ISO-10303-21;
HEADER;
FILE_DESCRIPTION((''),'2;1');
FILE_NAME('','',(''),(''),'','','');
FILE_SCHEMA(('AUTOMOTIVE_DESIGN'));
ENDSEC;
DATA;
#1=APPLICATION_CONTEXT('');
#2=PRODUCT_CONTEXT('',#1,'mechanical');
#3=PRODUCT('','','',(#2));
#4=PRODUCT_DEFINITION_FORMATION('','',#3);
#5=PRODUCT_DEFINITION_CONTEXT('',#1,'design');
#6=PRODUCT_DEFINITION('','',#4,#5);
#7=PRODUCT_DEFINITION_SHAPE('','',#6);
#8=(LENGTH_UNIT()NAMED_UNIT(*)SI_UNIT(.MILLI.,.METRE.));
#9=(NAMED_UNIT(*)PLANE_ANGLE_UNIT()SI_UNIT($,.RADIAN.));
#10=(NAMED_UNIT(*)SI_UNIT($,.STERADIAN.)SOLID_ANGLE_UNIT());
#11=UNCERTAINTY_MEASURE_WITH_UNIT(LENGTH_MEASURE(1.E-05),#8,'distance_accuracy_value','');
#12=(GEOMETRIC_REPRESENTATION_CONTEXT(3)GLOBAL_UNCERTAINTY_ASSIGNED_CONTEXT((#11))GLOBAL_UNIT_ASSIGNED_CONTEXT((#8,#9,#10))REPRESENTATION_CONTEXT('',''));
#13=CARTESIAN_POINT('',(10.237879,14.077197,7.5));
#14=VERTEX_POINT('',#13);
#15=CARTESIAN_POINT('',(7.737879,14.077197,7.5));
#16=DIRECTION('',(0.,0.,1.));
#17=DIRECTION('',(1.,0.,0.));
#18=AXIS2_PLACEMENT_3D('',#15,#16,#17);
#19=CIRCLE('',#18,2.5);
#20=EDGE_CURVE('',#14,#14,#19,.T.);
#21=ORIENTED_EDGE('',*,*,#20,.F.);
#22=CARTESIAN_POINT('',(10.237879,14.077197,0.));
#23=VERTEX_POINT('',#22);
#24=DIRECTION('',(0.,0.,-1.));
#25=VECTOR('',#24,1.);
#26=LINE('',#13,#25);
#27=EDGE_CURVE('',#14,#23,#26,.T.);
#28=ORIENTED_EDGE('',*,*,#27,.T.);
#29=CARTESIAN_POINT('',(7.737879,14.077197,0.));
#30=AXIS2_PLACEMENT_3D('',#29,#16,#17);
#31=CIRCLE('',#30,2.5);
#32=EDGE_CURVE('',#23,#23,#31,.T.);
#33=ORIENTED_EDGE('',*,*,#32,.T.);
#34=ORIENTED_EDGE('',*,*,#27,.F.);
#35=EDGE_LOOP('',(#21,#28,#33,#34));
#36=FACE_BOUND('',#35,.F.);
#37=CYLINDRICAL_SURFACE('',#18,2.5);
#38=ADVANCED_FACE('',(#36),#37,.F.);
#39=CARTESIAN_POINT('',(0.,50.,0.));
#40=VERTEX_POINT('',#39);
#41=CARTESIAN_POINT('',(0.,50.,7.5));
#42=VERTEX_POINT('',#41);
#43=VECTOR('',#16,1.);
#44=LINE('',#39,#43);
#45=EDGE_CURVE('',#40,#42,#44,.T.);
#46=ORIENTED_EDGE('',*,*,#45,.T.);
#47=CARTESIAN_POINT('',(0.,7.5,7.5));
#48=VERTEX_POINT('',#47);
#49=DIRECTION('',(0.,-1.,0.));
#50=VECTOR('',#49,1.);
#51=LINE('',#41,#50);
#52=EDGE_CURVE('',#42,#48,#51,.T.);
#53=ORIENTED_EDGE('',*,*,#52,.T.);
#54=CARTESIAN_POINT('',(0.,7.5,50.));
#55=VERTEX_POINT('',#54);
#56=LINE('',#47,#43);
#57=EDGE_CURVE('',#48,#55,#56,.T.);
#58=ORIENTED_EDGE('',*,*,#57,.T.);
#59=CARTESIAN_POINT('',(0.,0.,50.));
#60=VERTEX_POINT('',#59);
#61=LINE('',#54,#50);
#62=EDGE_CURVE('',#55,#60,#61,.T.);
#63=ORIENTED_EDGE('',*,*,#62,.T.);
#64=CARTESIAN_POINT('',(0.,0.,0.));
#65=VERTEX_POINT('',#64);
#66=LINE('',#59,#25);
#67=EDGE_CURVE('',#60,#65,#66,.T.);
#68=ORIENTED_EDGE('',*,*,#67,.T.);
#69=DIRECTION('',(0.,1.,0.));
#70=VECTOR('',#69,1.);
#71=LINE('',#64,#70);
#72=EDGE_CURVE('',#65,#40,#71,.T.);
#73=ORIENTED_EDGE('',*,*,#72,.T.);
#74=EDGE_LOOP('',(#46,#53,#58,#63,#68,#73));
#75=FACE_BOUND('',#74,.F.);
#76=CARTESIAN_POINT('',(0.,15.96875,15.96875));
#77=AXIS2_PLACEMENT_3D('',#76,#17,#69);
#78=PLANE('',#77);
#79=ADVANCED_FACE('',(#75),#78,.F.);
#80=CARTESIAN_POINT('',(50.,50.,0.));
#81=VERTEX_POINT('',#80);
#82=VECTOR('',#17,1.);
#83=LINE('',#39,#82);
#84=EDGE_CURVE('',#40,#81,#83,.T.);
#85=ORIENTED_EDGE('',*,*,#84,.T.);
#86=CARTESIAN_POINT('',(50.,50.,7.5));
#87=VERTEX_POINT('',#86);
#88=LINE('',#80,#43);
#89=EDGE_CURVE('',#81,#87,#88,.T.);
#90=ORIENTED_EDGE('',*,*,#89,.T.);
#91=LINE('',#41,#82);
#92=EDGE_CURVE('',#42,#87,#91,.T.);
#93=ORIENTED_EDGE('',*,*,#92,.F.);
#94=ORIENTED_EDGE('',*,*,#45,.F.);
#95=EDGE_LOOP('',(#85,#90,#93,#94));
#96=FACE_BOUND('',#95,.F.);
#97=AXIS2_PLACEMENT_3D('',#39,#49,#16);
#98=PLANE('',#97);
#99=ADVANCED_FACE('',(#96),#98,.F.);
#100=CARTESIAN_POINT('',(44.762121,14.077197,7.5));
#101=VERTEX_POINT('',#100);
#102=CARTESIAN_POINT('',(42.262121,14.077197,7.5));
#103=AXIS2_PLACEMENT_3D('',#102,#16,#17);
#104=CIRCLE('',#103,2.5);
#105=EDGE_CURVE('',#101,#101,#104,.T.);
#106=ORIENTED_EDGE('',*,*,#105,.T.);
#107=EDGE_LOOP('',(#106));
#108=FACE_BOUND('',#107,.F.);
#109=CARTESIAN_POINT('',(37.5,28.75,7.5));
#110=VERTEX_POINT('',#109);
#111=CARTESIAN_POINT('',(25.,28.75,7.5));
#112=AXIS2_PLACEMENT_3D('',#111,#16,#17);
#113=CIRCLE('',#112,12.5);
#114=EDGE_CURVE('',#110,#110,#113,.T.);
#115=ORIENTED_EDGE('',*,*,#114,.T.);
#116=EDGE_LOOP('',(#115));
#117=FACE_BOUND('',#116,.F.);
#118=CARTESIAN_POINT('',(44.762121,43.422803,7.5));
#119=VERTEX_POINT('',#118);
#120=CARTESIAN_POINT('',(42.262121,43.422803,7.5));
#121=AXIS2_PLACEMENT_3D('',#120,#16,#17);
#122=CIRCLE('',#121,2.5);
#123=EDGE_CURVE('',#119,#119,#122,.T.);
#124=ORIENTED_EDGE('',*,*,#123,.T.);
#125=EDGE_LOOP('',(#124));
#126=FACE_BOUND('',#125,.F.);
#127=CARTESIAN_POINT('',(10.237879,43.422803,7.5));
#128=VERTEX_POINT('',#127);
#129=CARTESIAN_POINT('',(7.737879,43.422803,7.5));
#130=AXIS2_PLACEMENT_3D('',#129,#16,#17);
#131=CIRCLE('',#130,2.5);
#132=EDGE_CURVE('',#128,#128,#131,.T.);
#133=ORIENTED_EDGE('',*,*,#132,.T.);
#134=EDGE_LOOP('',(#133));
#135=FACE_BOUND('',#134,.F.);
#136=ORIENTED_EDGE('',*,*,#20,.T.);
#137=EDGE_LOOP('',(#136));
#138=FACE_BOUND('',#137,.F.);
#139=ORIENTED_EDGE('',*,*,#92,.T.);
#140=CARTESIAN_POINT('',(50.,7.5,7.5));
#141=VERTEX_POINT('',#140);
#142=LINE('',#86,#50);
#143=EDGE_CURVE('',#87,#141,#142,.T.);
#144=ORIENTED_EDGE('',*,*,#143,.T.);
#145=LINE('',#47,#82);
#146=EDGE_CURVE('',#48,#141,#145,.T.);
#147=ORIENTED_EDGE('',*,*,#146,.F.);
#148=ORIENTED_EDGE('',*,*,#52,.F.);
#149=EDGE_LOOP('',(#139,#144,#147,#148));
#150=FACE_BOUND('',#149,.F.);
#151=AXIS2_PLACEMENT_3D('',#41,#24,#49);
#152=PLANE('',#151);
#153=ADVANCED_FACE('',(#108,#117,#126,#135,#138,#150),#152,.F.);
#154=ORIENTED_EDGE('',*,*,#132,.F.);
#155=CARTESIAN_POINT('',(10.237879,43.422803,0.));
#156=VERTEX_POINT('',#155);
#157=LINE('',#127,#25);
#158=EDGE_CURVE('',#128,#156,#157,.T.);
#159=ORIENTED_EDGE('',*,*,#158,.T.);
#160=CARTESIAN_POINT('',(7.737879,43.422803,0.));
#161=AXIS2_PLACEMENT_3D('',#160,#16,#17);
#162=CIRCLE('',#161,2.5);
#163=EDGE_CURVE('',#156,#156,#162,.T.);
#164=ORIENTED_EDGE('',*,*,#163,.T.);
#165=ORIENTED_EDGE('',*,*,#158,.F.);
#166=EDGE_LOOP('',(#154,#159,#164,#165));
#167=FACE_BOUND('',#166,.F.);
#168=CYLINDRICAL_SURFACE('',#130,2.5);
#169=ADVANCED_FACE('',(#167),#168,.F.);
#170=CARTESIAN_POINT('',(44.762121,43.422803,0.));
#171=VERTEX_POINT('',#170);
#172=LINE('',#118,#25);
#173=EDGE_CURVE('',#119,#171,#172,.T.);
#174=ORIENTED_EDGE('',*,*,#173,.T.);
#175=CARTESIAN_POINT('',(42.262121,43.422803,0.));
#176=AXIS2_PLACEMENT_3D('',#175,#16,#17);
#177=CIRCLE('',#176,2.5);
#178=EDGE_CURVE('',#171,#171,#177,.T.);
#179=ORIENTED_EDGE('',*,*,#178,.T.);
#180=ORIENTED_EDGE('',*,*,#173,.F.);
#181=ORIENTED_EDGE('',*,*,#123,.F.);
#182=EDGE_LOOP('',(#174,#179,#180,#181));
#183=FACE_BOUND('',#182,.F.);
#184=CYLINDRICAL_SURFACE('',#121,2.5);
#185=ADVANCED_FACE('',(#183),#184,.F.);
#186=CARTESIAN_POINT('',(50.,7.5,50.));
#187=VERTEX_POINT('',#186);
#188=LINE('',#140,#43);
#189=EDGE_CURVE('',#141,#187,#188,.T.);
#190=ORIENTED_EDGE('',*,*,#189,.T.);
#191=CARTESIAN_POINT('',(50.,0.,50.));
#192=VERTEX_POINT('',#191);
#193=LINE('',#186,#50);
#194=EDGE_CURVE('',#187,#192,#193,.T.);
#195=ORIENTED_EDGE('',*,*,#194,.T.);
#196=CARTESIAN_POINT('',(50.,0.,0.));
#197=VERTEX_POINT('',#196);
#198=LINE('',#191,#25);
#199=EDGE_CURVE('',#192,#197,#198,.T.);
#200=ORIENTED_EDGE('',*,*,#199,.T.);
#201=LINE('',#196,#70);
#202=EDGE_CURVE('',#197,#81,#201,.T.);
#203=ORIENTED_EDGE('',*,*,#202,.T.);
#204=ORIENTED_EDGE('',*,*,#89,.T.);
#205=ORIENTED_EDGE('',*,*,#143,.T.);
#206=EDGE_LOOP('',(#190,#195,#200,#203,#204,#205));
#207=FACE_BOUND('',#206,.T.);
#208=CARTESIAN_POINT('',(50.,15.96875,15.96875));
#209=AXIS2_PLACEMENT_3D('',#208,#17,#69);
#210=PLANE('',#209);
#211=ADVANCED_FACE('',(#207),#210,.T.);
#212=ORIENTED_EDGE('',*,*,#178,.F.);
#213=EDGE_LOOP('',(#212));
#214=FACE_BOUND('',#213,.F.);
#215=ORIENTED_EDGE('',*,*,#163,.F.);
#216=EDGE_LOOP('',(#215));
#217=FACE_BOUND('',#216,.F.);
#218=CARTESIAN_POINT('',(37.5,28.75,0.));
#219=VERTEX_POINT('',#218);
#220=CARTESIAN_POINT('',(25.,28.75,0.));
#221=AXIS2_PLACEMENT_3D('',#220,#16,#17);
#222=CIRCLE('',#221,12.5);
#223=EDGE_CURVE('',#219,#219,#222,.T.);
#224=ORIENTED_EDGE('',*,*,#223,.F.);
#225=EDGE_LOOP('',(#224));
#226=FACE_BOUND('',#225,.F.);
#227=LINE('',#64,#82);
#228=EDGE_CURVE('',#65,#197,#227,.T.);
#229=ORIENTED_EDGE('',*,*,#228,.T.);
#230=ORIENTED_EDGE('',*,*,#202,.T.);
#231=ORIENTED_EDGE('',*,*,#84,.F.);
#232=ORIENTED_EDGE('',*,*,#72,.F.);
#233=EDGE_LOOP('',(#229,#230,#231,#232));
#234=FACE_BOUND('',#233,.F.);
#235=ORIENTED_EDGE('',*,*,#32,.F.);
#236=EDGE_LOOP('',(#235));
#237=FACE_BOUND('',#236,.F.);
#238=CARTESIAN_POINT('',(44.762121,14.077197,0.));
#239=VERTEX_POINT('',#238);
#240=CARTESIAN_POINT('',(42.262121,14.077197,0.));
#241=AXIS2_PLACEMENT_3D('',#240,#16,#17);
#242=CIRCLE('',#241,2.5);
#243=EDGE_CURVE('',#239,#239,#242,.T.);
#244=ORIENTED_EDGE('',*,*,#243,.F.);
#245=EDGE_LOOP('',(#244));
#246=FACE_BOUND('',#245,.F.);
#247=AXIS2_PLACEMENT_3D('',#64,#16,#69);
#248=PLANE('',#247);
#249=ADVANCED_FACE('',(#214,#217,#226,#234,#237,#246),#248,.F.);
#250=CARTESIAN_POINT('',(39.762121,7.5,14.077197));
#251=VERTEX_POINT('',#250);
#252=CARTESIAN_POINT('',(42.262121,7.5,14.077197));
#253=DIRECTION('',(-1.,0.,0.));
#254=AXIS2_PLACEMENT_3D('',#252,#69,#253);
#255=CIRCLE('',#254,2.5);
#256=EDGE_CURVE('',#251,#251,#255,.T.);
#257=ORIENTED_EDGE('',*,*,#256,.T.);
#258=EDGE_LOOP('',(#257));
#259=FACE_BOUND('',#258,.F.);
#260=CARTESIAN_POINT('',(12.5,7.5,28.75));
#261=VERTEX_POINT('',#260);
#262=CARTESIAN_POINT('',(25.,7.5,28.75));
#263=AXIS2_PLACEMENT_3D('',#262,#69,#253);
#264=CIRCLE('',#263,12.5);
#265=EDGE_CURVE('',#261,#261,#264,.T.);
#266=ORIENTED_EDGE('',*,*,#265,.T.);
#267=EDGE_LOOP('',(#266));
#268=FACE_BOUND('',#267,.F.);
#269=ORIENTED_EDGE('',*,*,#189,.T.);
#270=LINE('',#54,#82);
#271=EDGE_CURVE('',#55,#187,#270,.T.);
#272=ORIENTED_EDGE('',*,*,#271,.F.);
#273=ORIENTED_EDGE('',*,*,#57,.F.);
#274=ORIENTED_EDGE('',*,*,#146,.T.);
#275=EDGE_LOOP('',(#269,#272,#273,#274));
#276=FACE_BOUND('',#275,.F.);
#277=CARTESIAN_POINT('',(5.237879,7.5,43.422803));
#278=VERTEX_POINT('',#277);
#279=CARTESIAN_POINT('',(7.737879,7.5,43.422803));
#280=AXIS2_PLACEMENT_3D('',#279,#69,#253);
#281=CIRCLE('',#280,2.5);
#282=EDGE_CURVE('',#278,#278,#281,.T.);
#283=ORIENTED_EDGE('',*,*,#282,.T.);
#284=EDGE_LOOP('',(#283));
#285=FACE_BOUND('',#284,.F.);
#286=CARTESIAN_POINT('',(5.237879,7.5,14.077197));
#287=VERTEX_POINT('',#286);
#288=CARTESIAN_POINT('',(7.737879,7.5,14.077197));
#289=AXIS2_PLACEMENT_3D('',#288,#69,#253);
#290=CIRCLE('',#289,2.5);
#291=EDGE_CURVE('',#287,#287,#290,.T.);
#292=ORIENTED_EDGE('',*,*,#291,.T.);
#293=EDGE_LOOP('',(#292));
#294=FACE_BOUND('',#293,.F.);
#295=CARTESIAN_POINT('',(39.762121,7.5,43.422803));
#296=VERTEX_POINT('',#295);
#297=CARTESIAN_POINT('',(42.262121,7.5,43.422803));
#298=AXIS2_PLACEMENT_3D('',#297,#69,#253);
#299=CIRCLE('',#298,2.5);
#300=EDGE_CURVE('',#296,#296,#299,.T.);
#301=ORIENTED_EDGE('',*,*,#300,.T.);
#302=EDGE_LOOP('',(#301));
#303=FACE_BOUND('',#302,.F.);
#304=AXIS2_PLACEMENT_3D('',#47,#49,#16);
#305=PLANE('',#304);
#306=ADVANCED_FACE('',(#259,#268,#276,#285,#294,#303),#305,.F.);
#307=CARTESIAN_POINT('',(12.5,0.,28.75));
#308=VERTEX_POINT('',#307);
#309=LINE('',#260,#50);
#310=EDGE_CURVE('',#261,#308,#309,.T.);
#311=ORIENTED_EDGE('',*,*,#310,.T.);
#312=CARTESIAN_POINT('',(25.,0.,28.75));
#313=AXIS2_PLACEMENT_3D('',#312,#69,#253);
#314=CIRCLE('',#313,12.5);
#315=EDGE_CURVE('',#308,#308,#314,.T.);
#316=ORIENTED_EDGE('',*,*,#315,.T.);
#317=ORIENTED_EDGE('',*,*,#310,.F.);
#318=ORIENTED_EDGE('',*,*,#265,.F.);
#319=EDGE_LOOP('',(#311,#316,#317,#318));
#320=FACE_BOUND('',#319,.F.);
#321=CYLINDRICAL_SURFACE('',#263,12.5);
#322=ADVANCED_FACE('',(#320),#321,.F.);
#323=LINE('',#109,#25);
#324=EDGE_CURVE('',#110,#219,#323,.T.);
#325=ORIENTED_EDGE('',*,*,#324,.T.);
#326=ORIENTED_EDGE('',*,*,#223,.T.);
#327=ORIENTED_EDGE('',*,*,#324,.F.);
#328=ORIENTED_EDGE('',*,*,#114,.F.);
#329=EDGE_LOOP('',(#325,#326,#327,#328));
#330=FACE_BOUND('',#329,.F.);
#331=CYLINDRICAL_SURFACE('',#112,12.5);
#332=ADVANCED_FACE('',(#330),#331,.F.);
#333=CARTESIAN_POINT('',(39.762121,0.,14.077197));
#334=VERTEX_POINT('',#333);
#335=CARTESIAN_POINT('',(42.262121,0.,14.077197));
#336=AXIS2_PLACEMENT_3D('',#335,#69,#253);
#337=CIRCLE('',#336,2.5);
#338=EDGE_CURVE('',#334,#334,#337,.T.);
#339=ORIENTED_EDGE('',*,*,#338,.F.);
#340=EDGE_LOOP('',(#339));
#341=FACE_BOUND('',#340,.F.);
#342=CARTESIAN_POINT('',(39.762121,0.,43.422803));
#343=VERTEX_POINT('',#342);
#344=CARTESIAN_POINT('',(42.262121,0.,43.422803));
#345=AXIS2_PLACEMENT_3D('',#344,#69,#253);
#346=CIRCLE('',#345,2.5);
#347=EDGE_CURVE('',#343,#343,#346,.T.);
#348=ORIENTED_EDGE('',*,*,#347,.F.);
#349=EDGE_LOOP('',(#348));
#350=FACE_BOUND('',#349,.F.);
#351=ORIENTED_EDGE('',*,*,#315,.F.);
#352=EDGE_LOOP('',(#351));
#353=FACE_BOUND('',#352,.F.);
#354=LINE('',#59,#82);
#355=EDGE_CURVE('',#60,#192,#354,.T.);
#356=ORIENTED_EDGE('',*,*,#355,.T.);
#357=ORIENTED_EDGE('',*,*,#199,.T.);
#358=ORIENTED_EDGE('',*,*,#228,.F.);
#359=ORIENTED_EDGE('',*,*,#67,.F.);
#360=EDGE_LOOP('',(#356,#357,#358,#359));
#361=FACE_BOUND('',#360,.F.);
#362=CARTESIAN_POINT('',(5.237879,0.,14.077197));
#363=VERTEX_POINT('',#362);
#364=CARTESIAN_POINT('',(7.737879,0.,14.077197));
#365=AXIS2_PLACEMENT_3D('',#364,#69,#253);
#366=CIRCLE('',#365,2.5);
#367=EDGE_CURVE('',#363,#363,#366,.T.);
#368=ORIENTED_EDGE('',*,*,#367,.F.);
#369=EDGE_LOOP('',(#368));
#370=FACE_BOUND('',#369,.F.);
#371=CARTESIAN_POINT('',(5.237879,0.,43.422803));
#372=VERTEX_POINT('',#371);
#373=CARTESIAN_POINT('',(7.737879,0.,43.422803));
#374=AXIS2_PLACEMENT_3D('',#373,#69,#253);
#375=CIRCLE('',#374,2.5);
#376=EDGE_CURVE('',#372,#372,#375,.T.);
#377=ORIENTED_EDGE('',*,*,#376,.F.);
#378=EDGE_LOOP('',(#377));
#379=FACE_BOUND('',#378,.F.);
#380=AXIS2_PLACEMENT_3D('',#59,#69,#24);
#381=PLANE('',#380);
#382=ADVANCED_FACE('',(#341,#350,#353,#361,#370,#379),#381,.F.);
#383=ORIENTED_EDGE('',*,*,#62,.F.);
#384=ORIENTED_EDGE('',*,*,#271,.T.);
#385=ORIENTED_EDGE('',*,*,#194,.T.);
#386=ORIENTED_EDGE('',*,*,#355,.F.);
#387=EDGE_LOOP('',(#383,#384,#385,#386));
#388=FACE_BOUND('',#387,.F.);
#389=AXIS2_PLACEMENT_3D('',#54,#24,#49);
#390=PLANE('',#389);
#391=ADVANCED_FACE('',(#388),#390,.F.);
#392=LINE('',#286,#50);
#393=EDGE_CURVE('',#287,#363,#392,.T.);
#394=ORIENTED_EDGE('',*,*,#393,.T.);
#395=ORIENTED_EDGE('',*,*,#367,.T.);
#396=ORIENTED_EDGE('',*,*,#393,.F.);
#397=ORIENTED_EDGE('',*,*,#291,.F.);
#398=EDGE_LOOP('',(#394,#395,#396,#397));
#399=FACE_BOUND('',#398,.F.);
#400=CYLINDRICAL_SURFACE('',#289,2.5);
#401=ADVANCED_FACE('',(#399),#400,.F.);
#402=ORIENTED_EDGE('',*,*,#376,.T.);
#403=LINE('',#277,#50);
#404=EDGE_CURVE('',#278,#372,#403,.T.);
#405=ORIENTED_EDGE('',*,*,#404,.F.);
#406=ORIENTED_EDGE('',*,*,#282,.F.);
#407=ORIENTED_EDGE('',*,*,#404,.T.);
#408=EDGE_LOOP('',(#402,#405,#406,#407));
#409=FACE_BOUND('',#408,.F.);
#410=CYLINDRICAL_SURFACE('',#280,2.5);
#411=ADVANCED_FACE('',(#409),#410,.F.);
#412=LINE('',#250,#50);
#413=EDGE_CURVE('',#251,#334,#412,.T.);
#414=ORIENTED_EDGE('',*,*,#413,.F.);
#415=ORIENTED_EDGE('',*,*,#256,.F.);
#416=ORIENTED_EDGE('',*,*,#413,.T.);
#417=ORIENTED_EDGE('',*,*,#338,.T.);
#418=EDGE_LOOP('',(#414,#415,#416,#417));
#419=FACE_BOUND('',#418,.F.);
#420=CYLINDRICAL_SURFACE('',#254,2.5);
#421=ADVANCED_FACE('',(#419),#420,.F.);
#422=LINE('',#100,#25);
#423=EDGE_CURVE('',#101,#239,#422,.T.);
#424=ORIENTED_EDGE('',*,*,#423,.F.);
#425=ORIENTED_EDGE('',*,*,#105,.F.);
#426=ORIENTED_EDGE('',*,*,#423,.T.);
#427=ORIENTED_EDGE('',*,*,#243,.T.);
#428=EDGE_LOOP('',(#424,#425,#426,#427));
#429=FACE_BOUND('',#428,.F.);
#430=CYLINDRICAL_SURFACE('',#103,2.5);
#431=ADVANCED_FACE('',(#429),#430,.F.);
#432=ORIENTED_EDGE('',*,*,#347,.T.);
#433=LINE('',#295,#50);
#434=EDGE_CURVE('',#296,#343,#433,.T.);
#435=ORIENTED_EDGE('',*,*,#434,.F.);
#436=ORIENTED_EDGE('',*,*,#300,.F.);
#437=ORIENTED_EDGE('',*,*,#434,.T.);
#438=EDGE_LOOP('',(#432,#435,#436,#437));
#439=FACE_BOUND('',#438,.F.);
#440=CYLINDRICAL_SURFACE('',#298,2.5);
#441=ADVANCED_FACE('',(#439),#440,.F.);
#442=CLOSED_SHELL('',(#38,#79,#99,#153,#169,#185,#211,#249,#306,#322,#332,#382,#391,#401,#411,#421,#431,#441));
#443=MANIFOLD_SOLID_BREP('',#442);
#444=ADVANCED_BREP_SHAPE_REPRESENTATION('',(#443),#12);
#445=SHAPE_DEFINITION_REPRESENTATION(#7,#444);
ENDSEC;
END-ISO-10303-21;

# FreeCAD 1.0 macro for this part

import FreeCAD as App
import Part
import Sketcher
from FreeCAD import Vector


def add_polygon(sketch, points):
    """Adds a closed chain of lines whose ends are joined by coincident constraints."""
    first, n = sketch.GeometryCount, len(points)
    for a, b in zip(points, points[1:] + points[:1]):
        sketch.addGeometry(Part.LineSegment(App.Vector(*a, 0), App.Vector(*b, 0)), False)
    for i in range(n):
        sketch.addConstraint(Sketcher.Constraint("Coincident", first + i, 2, first + (i + 1) % n, 1))

doc = App.newDocument("Part")
body = doc.addObject("PartDesign::Body", "Body")

# Sketch on YZ plane
sketch1 = body.newObject("Sketcher::SketchObject", "Sketch")
sketch1.AttachmentSupport = (doc.getObject("YZ_Plane"), [""])
sketch1.MapMode = "FlatFace"
add_polygon(sketch1, [(8, 50), (0, 50), (0, 0), (50, 0), (50, 8), (8, 8)])  # lines 0-5
sketch1.addConstraint([
    Sketcher.Constraint("Horizontal", 0),
    Sketcher.Constraint("Vertical", 1),
    Sketcher.Constraint("Horizontal", 2),
    Sketcher.Constraint("Vertical", 3),
    Sketcher.Constraint("Horizontal", 4),
    Sketcher.Constraint("Vertical", 5),
    Sketcher.Constraint("Coincident", 1, 2, -1, 1),
    Sketcher.Constraint("Equal", 2, 1),
    Sketcher.Constraint("Equal", 0, 3),
    Sketcher.Constraint("DistanceX", 2, 1, 2, 2, 50.0),
    Sketcher.Constraint("DistanceX", 0, 2, 0, 1, 7.5),
])
pad1 = body.newObject("PartDesign::Pad", "Pad")
pad1.Profile = sketch1
pad1.Length = 50

# Sketch on XZ plane
sketch2 = body.newObject("Sketcher::SketchObject", "Sketch001")
sketch2.AttachmentSupport = (doc.getObject("XZ_Plane"), [""])
sketch2.MapMode = "FlatFace"
sketch2.AttachmentOffset = App.Placement(Vector(0, 0, -7.5), App.Rotation())
sketch2.addGeometry([
    Part.Circle(Vector(25, 28.8, 0), Vector(0, 0, 1), 12.5),  # 0
    Part.Circle(Vector(42.3, 43.4, 0), Vector(0, 0, 1), 2.5),  # 1
    Part.Circle(Vector(7.7, 43.4, 0), Vector(0, 0, 1), 2.5),  # 2
    Part.Circle(Vector(7.7, 14.1, 0), Vector(0, 0, 1), 2.5),  # 3
    Part.Circle(Vector(42.3, 14.1, 0), Vector(0, 0, 1), 2.5),  # 4
], False)
sketch2.addConstraint([
    Sketcher.Constraint("Equal", 1, 2),
    Sketcher.Constraint("Equal", 2, 3),
    Sketcher.Constraint("Equal", 3, 4),
    Sketcher.Constraint("Horizontal", 1, 3, 2, 3),
    Sketcher.Constraint("Horizontal", 3, 3, 4, 3),
    Sketcher.Constraint("Vertical", 2, 3, 3, 3),
    Sketcher.Constraint("Vertical", 1, 3, 4, 3),
    Sketcher.Constraint("Diameter", 0, 25.0),
    Sketcher.Constraint("Diameter", 1, 5.0),
    Sketcher.Constraint("DistanceX", -1, 1, 0, 3, 25.0),
    Sketcher.Constraint("DistanceY", -1, 1, 0, 3, 28.75),
    Sketcher.Constraint("DistanceX", -1, 1, 1, 3, 42.262121),
    Sketcher.Constraint("DistanceX", -1, 1, 2, 3, 7.737879),
    Sketcher.Constraint("DistanceY", -1, 1, 1, 3, 43.422803),
    Sketcher.Constraint("DistanceY", -1, 1, 3, 3, 14.077197),
])
pocket1 = body.newObject("PartDesign::Pocket", "Pocket")
pocket1.Profile = sketch2
pocket1.Type = "ThroughAll"
pocket1.Reversed = True

# Sketch on XY plane
sketch3 = body.newObject("Sketcher::SketchObject", "Sketch002")
sketch3.AttachmentSupport = (doc.getObject("XY_Plane"), [""])
sketch3.MapMode = "FlatFace"
sketch3.AttachmentOffset = App.Placement(Vector(0, 0, 7.5), App.Rotation())
sketch3.addGeometry([
    Part.Circle(Vector(25, 28.8, 0), Vector(0, 0, 1), 12.5),  # 0
    Part.Circle(Vector(7.7, 43.4, 0), Vector(0, 0, 1), 2.5),  # 1
    Part.Circle(Vector(42.3, 43.4, 0), Vector(0, 0, 1), 2.5),  # 2
    Part.Circle(Vector(42.3, 14.1, 0), Vector(0, 0, 1), 2.5),  # 3
    Part.Circle(Vector(7.7, 14.1, 0), Vector(0, 0, 1), 2.5),  # 4
], False)
sketch3.addConstraint([
    Sketcher.Constraint("Equal", 1, 2),
    Sketcher.Constraint("Equal", 2, 3),
    Sketcher.Constraint("Equal", 3, 4),
    Sketcher.Constraint("Horizontal", 1, 3, 2, 3),
    Sketcher.Constraint("Horizontal", 3, 3, 4, 3),
    Sketcher.Constraint("Vertical", 2, 3, 3, 3),
    Sketcher.Constraint("Vertical", 1, 3, 4, 3),
    Sketcher.Constraint("Diameter", 0, 25.0),
    Sketcher.Constraint("Diameter", 1, 5.0),
    Sketcher.Constraint("DistanceX", -1, 1, 0, 3, 25.0),
    Sketcher.Constraint("DistanceY", -1, 1, 0, 3, 28.75),
    Sketcher.Constraint("DistanceX", -1, 1, 1, 3, 7.737879),
    Sketcher.Constraint("DistanceX", -1, 1, 2, 3, 42.262121),
    Sketcher.Constraint("DistanceY", -1, 1, 1, 3, 43.422803),
    Sketcher.Constraint("DistanceY", -1, 1, 3, 3, 14.077197),
])
pocket2 = body.newObject("PartDesign::Pocket", "Pocket001")
pocket2.Profile = sketch3
pocket2.Type = "ThroughAll"

doc.recompute()
